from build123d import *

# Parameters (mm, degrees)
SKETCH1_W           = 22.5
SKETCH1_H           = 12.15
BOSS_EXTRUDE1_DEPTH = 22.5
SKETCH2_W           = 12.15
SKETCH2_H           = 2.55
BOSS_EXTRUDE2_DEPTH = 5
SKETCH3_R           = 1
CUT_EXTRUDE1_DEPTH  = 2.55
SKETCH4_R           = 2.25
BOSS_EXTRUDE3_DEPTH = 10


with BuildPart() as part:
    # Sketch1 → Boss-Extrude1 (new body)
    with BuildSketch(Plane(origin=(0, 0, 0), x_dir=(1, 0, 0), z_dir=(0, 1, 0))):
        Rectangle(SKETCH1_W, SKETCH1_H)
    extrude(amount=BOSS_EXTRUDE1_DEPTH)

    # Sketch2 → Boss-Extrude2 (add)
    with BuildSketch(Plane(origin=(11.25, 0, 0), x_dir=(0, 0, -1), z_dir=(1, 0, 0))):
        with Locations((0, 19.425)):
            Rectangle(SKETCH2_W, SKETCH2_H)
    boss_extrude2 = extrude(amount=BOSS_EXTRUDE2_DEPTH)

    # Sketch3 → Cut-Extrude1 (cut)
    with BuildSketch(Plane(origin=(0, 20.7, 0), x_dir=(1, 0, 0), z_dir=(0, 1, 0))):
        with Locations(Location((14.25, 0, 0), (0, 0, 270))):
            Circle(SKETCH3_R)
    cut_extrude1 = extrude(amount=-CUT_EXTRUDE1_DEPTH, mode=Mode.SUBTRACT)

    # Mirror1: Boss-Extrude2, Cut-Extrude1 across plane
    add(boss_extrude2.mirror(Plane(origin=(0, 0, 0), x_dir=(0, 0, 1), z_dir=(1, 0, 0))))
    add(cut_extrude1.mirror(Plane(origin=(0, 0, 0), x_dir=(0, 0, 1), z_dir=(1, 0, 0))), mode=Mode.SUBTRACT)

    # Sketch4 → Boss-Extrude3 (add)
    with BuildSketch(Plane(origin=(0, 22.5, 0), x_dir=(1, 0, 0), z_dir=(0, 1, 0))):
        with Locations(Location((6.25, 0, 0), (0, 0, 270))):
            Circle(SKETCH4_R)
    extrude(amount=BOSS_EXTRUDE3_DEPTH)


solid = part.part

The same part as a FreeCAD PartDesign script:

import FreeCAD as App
import Part
import Sketcher

V = App.Vector

doc = App.newDocument("Part")
body = doc.addObject("PartDesign::Body", "Body")

sketch1 = body.newObject("Sketcher::SketchObject", "Sketch")
sketch1.AttachmentSupport = (doc.getObject("XZ_Plane"), [""])
sketch1.MapMode = "FlatFace"
sketch1.addGeometry([
    Part.LineSegment(V(-11, -6, 0), V(-11, 6, 0)),
    Part.LineSegment(V(-11, 6, 0), V(11, 6, 0)),
    Part.LineSegment(V(11, 6, 0), V(11, -6, 0)),
    Part.LineSegment(V(11, -6, 0), V(-11, -6, 0)),
], False)
sketch1.addConstraint([
    Sketcher.Constraint("Coincident", 0, 2, 1, 1),
    Sketcher.Constraint("Coincident", 1, 2, 2, 1),
    Sketcher.Constraint("Coincident", 2, 2, 3, 1),
    Sketcher.Constraint("Coincident", 3, 2, 0, 1),
    Sketcher.Constraint("Vertical", 0),
    Sketcher.Constraint("Horizontal", 1),
    Sketcher.Constraint("Vertical", 2),
    Sketcher.Constraint("Horizontal", 3),
    Sketcher.Constraint("Symmetric", 0, 2, 2, 2, -1, 1),
    Sketcher.Constraint("DistanceX", 1, 1, 1, 2, 22.5),
    Sketcher.Constraint("DistanceY", 0, 1, 0, 2, 12.15),
])
pad1 = body.newObject("PartDesign::Pad", "Pad")
pad1.Profile = sketch1
pad1.Length = 22.5
pad1.Reversed = True

sketch2 = body.newObject("Sketcher::SketchObject", "Sketch001")
sketch2.AttachmentSupport = (doc.getObject("YZ_Plane"), [""])
sketch2.MapMode = "FlatFace"
sketch2.AttachmentOffset = App.Placement(V(0, 0, 11.25), App.Rotation())
sketch2.addGeometry([
    Part.LineSegment(V(20.7, 6.1, 0), V(18.1, 6.1, 0)),
    Part.LineSegment(V(18.1, 6.1, 0), V(18.1, -6.1, 0)),
    Part.LineSegment(V(18.1, -6.1, 0), V(20.7, -6.1, 0)),
    Part.LineSegment(V(20.7, -6.1, 0), V(20.7, 6.1, 0)),
], False)
sketch2.addConstraint([
    Sketcher.Constraint("Coincident", 0, 2, 1, 1),
    Sketcher.Constraint("Coincident", 1, 2, 2, 1),
    Sketcher.Constraint("Coincident", 2, 2, 3, 1),
    Sketcher.Constraint("Coincident", 3, 2, 0, 1),
    Sketcher.Constraint("Horizontal", 0),
    Sketcher.Constraint("Vertical", 1),
    Sketcher.Constraint("Horizontal", 2),
    Sketcher.Constraint("Vertical", 3),
    Sketcher.Constraint("DistanceX", 0, 2, 0, 1, 2.55),
    Sketcher.Constraint("DistanceY", 1, 2, 1, 1, 12.15),
    Sketcher.Constraint("DistanceX", -1, 1, 2, 2, 20.7),
    Sketcher.Constraint("DistanceY", -1, 1, 0, 2, 6.075),
])
pad2 = body.newObject("PartDesign::Pad", "Pad001")
pad2.Profile = sketch2
pad2.Length = 5

sketch3 = body.newObject("Sketcher::SketchObject", "Sketch002")
sketch3.AttachmentSupport = (doc.getObject("XZ_Plane"), [""])
sketch3.MapMode = "FlatFace"
sketch3.AttachmentOffset = App.Placement(V(0, 0, -20.7), App.Rotation())
sketch3.addGeometry(Part.Circle(V(14.2, 0, 0), V(0, 0, 1), 1), False)
sketch3.addConstraint([
    Sketcher.Constraint("PointOnObject", 0, 3, -1),
    Sketcher.Constraint("Diameter", 0, 2.0),
    Sketcher.Constraint("DistanceX", -1, 1, 0, 3, 14.25),
])
pocket1 = body.newObject("PartDesign::Pocket", "Pocket")
pocket1.Profile = sketch3
pocket1.Length = 2.55
pocket1.Reversed = True
doc.recompute()

mirrored = body.newObject("PartDesign::Mirrored", "Mirrored")
mirrored.Originals = [pad2, pocket1]
mirrored.MirrorPlane = (doc.getObject("YZ_Plane"), [""])
body.Tip = mirrored

sketch4 = body.newObject("Sketcher::SketchObject", "Sketch003")
sketch4.AttachmentSupport = (doc.getObject("XZ_Plane"), [""])
sketch4.MapMode = "FlatFace"
sketch4.AttachmentOffset = App.Placement(V(0, 0, -22.5), App.Rotation())
sketch4.addGeometry(Part.Circle(V(6.2, 0, 0), V(0, 0, 1), 2.2), False)
sketch4.addConstraint([
    Sketcher.Constraint("PointOnObject", 0, 3, -1),
    Sketcher.Constraint("Diameter", 0, 4.5),
    Sketcher.Constraint("DistanceX", -1, 1, 0, 3, 6.25),
])
pad3 = body.newObject("PartDesign::Pad", "Pad002")
pad3.Profile = sketch4
pad3.Length = 10
pad3.Reversed = True

doc.recompute()
